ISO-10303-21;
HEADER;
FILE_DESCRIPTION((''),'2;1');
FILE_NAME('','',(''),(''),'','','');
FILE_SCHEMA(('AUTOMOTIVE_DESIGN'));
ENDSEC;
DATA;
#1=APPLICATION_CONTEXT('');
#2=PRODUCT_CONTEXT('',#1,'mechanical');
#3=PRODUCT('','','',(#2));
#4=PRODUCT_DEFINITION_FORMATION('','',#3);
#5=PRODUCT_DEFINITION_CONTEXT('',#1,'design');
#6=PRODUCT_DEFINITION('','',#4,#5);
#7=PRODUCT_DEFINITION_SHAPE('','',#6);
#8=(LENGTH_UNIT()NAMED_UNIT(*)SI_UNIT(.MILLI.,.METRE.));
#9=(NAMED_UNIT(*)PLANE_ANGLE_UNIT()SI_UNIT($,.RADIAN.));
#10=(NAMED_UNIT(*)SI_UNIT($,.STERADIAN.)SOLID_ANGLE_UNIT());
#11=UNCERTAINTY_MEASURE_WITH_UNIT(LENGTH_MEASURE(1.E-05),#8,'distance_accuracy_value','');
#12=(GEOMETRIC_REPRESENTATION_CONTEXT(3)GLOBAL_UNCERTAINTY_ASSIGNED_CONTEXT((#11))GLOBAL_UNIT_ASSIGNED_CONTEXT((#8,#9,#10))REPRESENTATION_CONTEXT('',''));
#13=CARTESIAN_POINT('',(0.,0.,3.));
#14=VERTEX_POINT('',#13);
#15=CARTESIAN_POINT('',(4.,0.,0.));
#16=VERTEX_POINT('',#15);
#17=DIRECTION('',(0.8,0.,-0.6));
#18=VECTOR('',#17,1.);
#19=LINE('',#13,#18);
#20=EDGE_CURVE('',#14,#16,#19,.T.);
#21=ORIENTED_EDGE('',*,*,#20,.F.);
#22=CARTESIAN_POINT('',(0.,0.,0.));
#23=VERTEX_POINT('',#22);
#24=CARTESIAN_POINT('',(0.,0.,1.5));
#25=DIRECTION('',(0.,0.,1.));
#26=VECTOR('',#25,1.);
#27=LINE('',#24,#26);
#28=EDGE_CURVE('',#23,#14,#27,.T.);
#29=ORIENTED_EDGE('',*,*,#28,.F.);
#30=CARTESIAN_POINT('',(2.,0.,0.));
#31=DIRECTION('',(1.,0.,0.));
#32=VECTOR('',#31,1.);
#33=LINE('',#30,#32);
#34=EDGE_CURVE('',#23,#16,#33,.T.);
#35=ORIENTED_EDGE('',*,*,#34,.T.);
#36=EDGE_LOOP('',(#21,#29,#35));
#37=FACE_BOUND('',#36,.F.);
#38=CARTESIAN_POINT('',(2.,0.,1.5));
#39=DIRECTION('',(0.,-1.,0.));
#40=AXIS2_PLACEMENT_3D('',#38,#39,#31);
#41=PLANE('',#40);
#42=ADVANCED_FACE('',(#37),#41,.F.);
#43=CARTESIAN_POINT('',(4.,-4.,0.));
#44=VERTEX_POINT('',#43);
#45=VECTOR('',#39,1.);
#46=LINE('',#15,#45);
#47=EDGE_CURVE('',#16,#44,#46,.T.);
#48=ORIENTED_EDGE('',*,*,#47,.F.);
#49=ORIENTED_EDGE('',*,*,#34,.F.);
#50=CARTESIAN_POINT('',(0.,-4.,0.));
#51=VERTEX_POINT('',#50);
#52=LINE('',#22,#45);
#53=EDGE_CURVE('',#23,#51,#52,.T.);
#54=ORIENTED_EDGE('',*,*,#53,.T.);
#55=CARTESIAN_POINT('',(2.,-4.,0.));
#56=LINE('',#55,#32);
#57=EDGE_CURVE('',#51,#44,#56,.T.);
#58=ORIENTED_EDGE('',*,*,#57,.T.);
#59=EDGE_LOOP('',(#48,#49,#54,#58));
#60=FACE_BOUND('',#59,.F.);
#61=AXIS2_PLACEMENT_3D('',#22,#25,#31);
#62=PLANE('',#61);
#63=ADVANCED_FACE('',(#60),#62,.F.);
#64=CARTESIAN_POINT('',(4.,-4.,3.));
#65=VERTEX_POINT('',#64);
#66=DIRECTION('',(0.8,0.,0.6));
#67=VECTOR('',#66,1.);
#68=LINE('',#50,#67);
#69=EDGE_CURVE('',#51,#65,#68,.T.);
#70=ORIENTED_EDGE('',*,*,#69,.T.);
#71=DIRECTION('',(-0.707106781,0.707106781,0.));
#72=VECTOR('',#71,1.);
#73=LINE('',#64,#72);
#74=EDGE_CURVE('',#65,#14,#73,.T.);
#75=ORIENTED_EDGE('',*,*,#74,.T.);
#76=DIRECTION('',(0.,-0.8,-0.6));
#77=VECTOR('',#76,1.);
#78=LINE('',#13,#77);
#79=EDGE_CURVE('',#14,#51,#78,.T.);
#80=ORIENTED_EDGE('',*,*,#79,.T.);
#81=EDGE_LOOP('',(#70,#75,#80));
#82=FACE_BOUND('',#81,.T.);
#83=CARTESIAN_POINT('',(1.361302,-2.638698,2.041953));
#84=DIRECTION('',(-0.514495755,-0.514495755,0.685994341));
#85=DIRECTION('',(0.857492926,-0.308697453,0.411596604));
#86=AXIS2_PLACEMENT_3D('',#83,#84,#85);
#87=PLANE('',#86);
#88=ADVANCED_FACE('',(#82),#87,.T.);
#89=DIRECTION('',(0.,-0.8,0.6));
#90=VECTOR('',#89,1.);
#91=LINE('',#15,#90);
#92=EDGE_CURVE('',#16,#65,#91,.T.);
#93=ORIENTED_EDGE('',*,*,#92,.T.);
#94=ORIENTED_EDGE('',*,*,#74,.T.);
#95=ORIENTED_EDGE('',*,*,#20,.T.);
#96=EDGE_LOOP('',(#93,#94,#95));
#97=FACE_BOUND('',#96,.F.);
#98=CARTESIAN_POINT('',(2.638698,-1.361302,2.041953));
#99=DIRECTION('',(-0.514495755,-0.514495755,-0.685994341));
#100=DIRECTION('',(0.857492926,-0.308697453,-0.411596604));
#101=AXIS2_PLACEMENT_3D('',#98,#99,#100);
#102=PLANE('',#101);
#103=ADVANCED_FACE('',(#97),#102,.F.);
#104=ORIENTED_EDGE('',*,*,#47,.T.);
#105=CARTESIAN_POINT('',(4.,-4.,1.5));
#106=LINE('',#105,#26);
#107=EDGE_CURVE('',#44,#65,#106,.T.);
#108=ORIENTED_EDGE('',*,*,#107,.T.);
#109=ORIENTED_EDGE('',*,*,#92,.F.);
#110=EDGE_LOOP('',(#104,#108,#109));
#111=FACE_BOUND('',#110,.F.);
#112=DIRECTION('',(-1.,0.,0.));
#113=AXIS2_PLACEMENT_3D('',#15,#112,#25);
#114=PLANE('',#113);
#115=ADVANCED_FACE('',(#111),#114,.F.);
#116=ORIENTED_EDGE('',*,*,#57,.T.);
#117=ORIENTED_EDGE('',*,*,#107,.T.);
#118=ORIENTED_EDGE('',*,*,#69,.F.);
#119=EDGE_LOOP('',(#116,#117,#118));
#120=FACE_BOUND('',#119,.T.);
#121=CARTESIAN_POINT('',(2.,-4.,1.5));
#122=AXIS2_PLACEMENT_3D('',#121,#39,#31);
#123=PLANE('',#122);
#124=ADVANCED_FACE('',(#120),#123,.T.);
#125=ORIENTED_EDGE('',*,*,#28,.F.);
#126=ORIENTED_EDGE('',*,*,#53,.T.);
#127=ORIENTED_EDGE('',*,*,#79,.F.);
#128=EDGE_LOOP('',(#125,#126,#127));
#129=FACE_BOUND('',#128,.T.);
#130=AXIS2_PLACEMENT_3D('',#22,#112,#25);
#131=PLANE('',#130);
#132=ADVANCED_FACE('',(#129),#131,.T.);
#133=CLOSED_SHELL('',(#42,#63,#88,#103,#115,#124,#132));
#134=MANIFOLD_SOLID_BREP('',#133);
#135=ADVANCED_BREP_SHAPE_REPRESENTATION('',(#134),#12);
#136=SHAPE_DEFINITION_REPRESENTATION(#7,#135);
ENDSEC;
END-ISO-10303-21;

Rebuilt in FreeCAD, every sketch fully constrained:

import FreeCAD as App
import Part
import Sketcher

doc = App.newDocument("Part")
body = doc.addObject("PartDesign::Body", "Body")

# Sketch on XZ plane
sketch1 = body.newObject("Sketcher::SketchObject", "Sketch")
sketch1.AttachmentSupport = (doc.getObject("XZ_Plane"), [""])
sketch1.MapMode = "FlatFace"
sketch1.addGeometry([
    Part.LineSegment(App.Vector(0, 3, 0), App.Vector(0, 0, 0)),
    Part.LineSegment(App.Vector(0, 0, 0), App.Vector(4, 0, 0)),
    Part.LineSegment(App.Vector(4, 0, 0), App.Vector(4, 3, 0)),
    Part.LineSegment(App.Vector(4, 3, 0), App.Vector(0, 3, 0)),
], False)
sketch1.addConstraint([
    Sketcher.Constraint("Coincident", 0, 2, 1, 1),
    Sketcher.Constraint("Coincident", 1, 2, 2, 1),
    Sketcher.Constraint("Coincident", 2, 2, 3, 1),
    Sketcher.Constraint("Coincident", 3, 2, 0, 1),
    Sketcher.Constraint("Vertical", 0),
    Sketcher.Constraint("Horizontal", 1),
    Sketcher.Constraint("Vertical", 2),
    Sketcher.Constraint("Horizontal", 3),
    Sketcher.Constraint("Coincident", 0, 2, -1, 1),
    Sketcher.Constraint("DistanceX", 1, 1, 1, 2, 4.0),
    Sketcher.Constraint("DistanceY", 0, 2, 0, 1, 3.0),
])
pad1 = body.newObject("PartDesign::Pad", "Pad")
pad1.Profile = sketch1
pad1.Length = 4

# Sketch on an angled plane
sketch2 = body.newObject("Sketcher::SketchObject", "Sketch001")
sketch2.Placement = App.Placement(App.Vector(-1.058824, -1.058824, 1.411765), App.Rotation(App.Vector(0.857492926, -0.308697453, 0.411596604), App.Vector(0, 0.8, 0.6), App.Vector(-0.514495755, -0.514495755, 0.685994341), "ZXY"))
sketch2.addGeometry([
    Part.LineSegment(App.Vector(5.9, -1.4, 0), App.Vector(1.2, 1.8, 0)),
    Part.LineSegment(App.Vector(1.2, 1.8, 0), App.Vector(1.2, -3.2, 0)),
    Part.LineSegment(App.Vector(1.2, -3.2, 0), App.Vector(5.9, -1.4, 0)),
], False)
sketch2.addConstraint([
    Sketcher.Constraint("Coincident", 0, 2, 1, 1),
    Sketcher.Constraint("Coincident", 1, 2, 2, 1),
    Sketcher.Constraint("Coincident", 2, 2, 0, 1),
    Sketcher.Constraint("Vertical", 1),
    Sketcher.Constraint("DistanceY", 1, 2, 1, 1, 5.0),
    Sketcher.Constraint("Distance", 2, 5.0),
    Sketcher.Constraint("DistanceY", -1, 1, 0, 2, 1.8),
    Sketcher.Constraint("DistanceY", 2, 2, -1, 1, 1.4),
    Sketcher.Constraint("DistanceX", -1, 1, 0, 2, 1.23479),
])
pocket1 = body.newObject("PartDesign::Pocket", "Pocket")
pocket1.Profile = sketch2
pocket1.Length = 25
pocket1.Reversed = True

# Sketch on an angled plane
sketch3 = body.newObject("Sketcher::SketchObject", "Sketch002")
sketch3.Placement = App.Placement(App.Vector(1.058824, 1.058824, 1.411765), App.Rotation(App.Vector(0.857492926, -0.308697453, -0.411596604), App.Vector(0, -0.8, 0.6), App.Vector(-0.514495755, -0.514495755, -0.685994341), "ZXY"))
sketch3.addGeometry([
    Part.LineSegment(App.Vector(3.4, 5, 0), App.Vector(-1.2, 1.8, 0)),
    Part.LineSegment(App.Vector(-1.2, 1.8, 0), App.Vector(3.4, 0, 0)),
    Part.LineSegment(App.Vector(3.4, 0, 0), App.Vector(3.4, 5, 0)),
], False)
sketch3.addConstraint([
    Sketcher.Constraint("Coincident", 0, 2, 1, 1),
    Sketcher.Constraint("Coincident", 1, 2, 2, 1),
    Sketcher.Constraint("Coincident", 2, 2, 0, 1),
    Sketcher.Constraint("Vertical", 2),
    Sketcher.Constraint("PointOnObject", 1, 2, -1),
    Sketcher.Constraint("DistanceY", 2, 1, 2, 2, 5.0),
    Sketcher.Constraint("Distance", 1, 5.0),
    Sketcher.Constraint("DistanceY", -1, 1, 0, 2, 1.8),
    Sketcher.Constraint("DistanceX", 0, 2, -1, 1, 1.23479),
])
pocket2 = body.newObject("PartDesign::Pocket", "Pocket001")
pocket2.Profile = sketch3
pocket2.Length = 25

doc.recompute()
